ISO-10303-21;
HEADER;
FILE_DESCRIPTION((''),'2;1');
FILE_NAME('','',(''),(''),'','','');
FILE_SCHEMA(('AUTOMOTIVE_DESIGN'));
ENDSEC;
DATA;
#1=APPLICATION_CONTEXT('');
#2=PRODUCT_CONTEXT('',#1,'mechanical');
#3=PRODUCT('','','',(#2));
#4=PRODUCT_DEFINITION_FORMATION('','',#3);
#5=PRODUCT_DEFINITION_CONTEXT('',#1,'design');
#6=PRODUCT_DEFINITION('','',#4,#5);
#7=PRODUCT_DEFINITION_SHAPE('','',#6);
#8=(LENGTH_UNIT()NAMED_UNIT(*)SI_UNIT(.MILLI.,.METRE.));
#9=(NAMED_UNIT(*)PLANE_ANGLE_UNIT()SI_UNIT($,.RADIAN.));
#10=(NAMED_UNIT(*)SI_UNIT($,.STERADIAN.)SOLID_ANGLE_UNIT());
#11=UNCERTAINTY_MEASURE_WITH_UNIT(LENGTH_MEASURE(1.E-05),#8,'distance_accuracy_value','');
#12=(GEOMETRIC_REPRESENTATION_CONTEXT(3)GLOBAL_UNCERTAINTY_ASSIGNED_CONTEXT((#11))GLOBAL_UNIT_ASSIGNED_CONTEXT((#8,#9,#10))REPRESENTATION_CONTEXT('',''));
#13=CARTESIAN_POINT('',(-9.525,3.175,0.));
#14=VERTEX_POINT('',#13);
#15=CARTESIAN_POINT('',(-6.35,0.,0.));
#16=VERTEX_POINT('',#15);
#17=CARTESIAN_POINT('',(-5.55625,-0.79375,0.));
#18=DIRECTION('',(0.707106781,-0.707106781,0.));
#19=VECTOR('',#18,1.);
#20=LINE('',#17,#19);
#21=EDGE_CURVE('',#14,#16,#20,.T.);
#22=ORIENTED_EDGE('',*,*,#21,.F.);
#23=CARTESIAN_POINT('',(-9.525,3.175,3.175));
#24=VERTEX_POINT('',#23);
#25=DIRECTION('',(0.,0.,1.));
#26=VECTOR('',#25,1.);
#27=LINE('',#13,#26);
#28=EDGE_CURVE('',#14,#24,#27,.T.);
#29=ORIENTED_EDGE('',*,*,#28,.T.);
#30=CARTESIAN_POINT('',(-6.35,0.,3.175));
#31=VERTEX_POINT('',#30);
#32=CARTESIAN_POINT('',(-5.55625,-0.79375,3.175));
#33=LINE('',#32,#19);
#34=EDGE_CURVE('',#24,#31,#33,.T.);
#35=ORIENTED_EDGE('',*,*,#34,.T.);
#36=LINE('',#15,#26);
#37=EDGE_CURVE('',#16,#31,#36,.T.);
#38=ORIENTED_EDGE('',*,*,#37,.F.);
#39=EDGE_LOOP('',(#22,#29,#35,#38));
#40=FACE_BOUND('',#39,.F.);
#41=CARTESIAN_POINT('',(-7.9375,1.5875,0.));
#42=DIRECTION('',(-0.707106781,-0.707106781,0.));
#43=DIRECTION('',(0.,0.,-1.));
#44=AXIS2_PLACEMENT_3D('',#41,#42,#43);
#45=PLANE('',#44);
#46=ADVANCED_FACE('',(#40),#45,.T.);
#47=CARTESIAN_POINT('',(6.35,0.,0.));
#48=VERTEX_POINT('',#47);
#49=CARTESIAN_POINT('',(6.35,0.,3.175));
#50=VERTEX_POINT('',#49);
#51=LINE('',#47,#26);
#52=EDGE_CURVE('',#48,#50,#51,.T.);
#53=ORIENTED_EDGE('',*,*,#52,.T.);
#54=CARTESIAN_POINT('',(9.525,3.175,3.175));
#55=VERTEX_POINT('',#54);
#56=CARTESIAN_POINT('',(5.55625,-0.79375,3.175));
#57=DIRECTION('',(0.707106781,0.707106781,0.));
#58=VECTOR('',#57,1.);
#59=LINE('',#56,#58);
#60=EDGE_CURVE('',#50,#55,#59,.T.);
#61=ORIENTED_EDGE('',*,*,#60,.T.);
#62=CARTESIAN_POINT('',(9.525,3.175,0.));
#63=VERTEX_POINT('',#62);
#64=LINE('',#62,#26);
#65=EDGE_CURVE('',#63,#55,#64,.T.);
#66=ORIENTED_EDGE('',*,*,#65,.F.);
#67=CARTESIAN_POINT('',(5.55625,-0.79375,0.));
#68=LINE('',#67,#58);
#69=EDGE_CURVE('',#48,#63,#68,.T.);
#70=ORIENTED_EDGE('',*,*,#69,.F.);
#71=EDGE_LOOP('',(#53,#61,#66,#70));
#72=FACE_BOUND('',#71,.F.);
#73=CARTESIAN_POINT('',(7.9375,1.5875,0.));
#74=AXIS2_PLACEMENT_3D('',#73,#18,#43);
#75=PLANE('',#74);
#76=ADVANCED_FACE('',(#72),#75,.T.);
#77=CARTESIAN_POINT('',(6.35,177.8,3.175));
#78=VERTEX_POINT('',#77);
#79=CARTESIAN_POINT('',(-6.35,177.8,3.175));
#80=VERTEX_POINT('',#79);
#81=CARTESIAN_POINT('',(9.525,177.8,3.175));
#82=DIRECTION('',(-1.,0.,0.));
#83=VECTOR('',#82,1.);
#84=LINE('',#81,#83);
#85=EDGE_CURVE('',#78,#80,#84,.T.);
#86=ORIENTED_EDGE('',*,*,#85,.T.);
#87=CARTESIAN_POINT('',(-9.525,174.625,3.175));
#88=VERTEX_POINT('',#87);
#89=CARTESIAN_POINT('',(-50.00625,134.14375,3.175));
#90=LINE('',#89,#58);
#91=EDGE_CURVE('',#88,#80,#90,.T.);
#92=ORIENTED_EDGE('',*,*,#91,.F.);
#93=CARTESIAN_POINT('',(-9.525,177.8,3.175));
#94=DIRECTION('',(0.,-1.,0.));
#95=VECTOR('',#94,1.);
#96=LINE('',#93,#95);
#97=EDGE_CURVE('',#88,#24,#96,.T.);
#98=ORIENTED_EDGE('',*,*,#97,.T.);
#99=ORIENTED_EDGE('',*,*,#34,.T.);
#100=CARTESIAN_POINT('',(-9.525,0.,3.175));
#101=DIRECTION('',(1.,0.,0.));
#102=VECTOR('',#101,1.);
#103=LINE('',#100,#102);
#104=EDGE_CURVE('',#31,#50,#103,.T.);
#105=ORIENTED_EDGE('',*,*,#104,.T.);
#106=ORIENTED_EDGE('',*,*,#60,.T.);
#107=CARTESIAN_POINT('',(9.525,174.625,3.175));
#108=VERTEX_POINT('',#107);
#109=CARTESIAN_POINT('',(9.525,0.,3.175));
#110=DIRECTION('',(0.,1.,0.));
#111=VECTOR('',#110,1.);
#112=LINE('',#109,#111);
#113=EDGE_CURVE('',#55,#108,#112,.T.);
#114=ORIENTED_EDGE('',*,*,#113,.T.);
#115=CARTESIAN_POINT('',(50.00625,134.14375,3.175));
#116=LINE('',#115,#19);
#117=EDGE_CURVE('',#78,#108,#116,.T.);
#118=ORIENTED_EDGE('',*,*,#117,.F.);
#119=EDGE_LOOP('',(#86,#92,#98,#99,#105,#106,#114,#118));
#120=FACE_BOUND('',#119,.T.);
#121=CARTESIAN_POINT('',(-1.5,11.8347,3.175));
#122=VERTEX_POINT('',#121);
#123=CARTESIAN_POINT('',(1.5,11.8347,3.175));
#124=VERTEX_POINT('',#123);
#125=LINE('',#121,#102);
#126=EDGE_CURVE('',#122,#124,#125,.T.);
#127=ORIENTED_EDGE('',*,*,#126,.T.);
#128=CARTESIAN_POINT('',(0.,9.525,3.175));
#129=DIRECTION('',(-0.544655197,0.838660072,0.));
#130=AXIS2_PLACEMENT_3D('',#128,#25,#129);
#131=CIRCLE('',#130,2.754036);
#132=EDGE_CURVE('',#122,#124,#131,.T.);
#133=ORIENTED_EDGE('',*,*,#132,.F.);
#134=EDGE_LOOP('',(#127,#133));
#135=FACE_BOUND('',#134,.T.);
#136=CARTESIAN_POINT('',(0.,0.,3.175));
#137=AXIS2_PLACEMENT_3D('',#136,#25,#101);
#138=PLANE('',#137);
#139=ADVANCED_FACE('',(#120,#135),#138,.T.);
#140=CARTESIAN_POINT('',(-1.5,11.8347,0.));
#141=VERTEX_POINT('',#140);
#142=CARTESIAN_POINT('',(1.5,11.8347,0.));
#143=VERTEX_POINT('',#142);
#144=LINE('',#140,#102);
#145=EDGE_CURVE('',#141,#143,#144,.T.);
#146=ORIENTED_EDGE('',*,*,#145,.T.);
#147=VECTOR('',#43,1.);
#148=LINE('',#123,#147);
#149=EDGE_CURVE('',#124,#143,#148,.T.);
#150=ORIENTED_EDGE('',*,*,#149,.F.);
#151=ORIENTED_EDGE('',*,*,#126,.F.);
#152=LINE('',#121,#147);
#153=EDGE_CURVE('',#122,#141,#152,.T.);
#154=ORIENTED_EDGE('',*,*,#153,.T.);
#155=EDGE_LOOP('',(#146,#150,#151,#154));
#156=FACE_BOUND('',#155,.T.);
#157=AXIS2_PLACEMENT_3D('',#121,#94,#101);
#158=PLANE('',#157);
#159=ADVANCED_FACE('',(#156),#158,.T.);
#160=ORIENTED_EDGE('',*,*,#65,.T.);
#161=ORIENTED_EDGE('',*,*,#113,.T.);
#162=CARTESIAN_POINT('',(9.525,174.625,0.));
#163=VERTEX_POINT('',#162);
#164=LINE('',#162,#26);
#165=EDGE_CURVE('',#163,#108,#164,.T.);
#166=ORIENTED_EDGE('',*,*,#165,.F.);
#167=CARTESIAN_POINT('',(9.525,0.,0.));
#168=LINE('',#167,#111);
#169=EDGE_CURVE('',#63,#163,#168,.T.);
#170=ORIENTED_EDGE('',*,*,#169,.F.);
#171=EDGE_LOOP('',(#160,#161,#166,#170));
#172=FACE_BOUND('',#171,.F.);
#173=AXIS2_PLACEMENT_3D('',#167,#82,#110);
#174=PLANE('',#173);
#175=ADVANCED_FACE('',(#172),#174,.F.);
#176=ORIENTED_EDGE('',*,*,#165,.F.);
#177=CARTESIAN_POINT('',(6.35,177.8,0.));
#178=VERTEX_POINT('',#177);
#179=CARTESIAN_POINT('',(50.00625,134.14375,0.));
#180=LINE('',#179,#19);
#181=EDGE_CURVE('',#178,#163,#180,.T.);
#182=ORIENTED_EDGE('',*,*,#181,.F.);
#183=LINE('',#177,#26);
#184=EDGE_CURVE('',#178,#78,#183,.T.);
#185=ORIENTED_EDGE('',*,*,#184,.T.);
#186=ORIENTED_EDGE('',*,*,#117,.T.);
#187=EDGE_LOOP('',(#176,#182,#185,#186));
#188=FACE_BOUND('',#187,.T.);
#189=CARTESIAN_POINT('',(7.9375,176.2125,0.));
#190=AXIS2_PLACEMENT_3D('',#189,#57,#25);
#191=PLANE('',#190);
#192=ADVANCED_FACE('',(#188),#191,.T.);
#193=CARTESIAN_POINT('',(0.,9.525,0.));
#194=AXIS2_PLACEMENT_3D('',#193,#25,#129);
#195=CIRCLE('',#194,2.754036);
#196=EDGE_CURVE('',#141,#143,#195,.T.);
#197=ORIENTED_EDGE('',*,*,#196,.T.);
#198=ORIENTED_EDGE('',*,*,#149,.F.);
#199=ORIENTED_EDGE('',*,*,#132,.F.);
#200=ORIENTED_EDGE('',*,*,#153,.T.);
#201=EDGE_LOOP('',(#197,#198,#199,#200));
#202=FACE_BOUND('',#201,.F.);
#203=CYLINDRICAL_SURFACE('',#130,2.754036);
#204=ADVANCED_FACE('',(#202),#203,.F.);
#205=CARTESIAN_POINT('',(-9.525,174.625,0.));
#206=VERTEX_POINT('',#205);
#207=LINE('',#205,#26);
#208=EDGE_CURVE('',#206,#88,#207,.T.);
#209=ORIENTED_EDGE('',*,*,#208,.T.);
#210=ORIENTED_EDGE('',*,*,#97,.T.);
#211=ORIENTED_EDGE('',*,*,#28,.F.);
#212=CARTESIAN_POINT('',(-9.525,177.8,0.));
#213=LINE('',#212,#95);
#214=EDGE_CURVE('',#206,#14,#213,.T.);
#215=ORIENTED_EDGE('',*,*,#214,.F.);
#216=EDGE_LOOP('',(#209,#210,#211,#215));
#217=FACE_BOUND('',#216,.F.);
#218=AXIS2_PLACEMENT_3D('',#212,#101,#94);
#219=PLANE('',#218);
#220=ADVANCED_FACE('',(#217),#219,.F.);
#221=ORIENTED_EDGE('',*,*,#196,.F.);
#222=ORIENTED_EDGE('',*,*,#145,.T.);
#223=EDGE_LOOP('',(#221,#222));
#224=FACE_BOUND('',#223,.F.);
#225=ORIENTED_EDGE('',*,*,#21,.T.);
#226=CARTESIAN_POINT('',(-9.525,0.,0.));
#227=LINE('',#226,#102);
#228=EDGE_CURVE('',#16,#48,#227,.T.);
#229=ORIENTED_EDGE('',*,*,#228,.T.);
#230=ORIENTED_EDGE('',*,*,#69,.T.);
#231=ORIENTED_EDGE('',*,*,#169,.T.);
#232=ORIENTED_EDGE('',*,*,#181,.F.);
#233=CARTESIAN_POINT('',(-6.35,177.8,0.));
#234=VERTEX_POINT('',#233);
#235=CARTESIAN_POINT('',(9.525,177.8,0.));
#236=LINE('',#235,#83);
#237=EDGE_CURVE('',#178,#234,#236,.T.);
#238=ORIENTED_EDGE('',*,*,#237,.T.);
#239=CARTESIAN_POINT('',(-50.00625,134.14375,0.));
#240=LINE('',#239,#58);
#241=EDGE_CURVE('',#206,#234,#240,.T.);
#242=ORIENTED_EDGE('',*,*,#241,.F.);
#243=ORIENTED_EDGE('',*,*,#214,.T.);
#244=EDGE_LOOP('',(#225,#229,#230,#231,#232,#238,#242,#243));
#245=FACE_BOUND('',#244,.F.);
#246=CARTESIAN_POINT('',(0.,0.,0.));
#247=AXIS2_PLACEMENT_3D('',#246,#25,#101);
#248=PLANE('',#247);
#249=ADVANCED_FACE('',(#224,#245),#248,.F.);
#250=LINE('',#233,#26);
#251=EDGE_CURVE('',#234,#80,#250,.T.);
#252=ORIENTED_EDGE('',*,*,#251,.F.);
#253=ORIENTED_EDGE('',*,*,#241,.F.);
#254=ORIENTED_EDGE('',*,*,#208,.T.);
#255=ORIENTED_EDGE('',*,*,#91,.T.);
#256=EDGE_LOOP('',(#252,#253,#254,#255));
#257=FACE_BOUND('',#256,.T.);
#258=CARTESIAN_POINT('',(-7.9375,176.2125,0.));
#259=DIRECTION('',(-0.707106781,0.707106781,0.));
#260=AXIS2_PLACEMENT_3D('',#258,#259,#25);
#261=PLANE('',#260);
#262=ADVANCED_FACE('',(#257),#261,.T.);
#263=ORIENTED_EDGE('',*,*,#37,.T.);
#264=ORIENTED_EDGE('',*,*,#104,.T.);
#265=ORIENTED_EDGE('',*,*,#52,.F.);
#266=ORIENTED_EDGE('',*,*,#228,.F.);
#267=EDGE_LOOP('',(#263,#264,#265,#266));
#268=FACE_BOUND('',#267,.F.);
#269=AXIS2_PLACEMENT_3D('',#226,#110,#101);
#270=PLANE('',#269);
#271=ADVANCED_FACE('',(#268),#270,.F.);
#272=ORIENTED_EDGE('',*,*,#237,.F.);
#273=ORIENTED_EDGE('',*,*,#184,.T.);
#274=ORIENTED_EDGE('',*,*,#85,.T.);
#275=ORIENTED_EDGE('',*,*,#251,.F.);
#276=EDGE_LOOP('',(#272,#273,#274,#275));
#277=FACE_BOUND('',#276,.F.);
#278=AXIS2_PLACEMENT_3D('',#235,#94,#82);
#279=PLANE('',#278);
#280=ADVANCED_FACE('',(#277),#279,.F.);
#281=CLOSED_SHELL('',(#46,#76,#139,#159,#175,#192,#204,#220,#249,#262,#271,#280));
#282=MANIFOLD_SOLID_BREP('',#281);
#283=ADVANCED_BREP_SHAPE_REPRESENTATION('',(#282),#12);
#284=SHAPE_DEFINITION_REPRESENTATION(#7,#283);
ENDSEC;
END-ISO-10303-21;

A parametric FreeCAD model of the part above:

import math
import FreeCAD as App
import Part
import Sketcher
Q = App.Units.Quantity


def edges_at(feature, points):
    """Names of the edges that pass closest to the given points."""
    edges = feature.Shape.Edges
    near = lambda p: min(range(len(edges)), key=lambda i: edges[i].distToShape(Part.Vertex(*p))[0])
    return sorted({f"Edge{near(p) + 1}" for p in points})

doc = App.newDocument("Part")
body = doc.addObject("PartDesign::Body", "Body")

# Sketch on XY plane
sketch1 = body.newObject("Sketcher::SketchObject", "Sketch")
sketch1.AttachmentSupport = (doc.getObject("XY_Plane"), [""])
sketch1.MapMode = "FlatFace"
sketch1.addGeometry(Part.LineSegment(App.Vector(-10, 178, 0), App.Vector(-10, 0, 0)), False)
sketch1.addGeometry(Part.LineSegment(App.Vector(-10, 0, 0), App.Vector(10, 0, 0)), False)
sketch1.addGeometry(Part.LineSegment(App.Vector(10, 0, 0), App.Vector(10, 178, 0)), False)
sketch1.addGeometry(Part.LineSegment(App.Vector(10, 178, 0), App.Vector(-10, 178, 0)), False)
sketch1.addConstraint(Sketcher.Constraint("Coincident", 0, 2, 1, 1))
sketch1.addConstraint(Sketcher.Constraint("Coincident", 1, 2, 2, 1))
sketch1.addConstraint(Sketcher.Constraint("Coincident", 2, 2, 3, 1))
sketch1.addConstraint(Sketcher.Constraint("Coincident", 3, 2, 0, 1))
sketch1.addConstraint(Sketcher.Constraint("Vertical", 0))
sketch1.addConstraint(Sketcher.Constraint("Horizontal", 1))
sketch1.addConstraint(Sketcher.Constraint("Vertical", 2))
sketch1.addConstraint(Sketcher.Constraint("Horizontal", 3))
sketch1.addConstraint(Sketcher.Constraint("Symmetric", 0, 2, 1, 2, -1, 1))
sketch1.addConstraint(Sketcher.Constraint("DistanceY", 0, 2, 0, 1, Q("7 in")))
sketch1.addConstraint(Sketcher.Constraint("DistanceX", 1, 1, 1, 2, Q("0.75 in")))
pad1 = body.newObject("PartDesign::Pad", "Pad")
pad1.Profile = sketch1
pad1.Length = Q("0.125 in")

# Sketch on XY plane
sketch2 = body.newObject("Sketcher::SketchObject", "Sketch001")
sketch2.AttachmentSupport = (doc.getObject("XY_Plane"), [""])
sketch2.MapMode = "FlatFace"
sketch2.AttachmentOffset = App.Placement(App.Vector(0, 0, 0.125 * 25.4), App.Rotation())
sketch2.addGeometry(Part.LineSegment(App.Vector(1.5, 11.8, 0), App.Vector(-1.5, 11.8, 0)), False)
sketch2.addGeometry(Part.ArcOfCircle(Part.Circle(App.Vector(0, 9.5, 0), App.Vector(0, 0, 1), 2.8), math.radians(123), math.radians(417)), False)
sketch2.addConstraint(Sketcher.Constraint("Coincident", 0, 1, 1, 2))
sketch2.addConstraint(Sketcher.Constraint("Coincident", 1, 1, 0, 2))
sketch2.addConstraint(Sketcher.Constraint("Horizontal", 0))
sketch2.addConstraint(Sketcher.Constraint("PointOnObject", 1, 3, -2))
sketch2.addConstraint(Sketcher.Constraint("Radius", 1, 2.754))
sketch2.addConstraint(Sketcher.Constraint("DistanceX", 0, 2, 0, 1, Q("0.1181 in")))
sketch2.addConstraint(Sketcher.Constraint("DistanceY", -1, 1, 1, 3, Q("0.375 in")))
pocket1 = body.newObject("PartDesign::Pocket", "Pocket")
pocket1.Profile = sketch2
pocket1.Length = Q("0.125 in")
doc.recompute()

chamfer = body.newObject("PartDesign::Chamfer", "Chamfer")
chamfer.Base = (pocket1, edges_at(pocket1, [
    (9.525, 0, 1.587),
    (-9.525, 0, 1.587),
    (9.525, 177.8, 1.587),
    (-9.525, 177.8, 1.587),
]))
chamfer.Size = Q("0.125 in")

doc.recompute()
